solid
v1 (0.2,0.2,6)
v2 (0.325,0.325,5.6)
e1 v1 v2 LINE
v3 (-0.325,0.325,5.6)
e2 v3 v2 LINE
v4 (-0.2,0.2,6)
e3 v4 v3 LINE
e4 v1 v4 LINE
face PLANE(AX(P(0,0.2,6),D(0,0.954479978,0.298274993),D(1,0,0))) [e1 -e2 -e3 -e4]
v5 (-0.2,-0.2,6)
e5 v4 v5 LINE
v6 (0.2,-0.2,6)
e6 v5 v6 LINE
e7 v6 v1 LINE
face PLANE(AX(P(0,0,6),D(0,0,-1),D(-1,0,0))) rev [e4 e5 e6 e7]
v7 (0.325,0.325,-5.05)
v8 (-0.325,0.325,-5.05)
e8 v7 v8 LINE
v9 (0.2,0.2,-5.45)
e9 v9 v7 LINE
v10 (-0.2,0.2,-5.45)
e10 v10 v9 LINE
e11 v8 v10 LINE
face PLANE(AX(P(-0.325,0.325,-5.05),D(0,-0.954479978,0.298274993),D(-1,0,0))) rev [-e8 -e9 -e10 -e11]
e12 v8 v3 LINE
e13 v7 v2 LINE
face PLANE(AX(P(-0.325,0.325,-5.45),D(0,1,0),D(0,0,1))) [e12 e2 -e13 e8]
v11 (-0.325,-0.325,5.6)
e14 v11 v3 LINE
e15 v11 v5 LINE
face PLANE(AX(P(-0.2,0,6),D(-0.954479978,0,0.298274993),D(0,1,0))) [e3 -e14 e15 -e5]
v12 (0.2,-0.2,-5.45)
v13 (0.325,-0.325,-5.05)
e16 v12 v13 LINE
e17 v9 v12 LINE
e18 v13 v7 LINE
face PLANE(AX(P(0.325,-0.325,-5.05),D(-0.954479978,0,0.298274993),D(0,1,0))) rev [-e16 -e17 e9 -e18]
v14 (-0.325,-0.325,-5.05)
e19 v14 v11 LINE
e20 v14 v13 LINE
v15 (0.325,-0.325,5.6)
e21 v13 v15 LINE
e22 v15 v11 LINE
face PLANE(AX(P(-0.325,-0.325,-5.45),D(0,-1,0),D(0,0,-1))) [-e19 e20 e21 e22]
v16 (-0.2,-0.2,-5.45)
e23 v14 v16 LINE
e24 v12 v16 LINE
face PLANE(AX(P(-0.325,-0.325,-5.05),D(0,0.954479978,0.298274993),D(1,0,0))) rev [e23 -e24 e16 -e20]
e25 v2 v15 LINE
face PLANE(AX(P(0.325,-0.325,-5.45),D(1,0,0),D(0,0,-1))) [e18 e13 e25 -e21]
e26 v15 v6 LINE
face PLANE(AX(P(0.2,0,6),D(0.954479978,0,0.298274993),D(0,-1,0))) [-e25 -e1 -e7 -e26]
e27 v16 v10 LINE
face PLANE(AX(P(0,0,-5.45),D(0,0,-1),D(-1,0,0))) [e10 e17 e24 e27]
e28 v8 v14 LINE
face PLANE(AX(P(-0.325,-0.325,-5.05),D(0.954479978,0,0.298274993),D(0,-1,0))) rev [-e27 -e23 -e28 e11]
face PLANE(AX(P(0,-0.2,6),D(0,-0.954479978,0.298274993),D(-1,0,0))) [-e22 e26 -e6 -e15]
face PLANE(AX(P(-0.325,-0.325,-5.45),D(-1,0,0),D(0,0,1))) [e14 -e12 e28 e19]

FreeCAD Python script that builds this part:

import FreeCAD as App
import Part
import Sketcher
from FreeCAD import Vector
Q = App.Units.Quantity


def edges_at(feature, points):
    """Names of the edges that pass closest to the given points."""
    edges = feature.Shape.Edges
    near = lambda p: min(range(len(edges)), key=lambda i: edges[i].distToShape(Part.Vertex(*p))[0])
    return sorted({f"Edge{near(p) + 1}" for p in points})

doc = App.newDocument("Part")
body = doc.addObject("PartDesign::Body", "Body")

# Sketch on XY plane
sketch1 = body.newObject("Sketcher::SketchObject", "Sketch")
sketch1.AttachmentSupport = (doc.getObject("XY_Plane"), [""])
sketch1.MapMode = "FlatFace"
sketch1.addGeometry([
    Part.LineSegment(Vector(-0.3, 0.3, 0), Vector(-0.3, -0.3, 0)),
    Part.LineSegment(Vector(-0.3, -0.3, 0), Vector(0.3, -0.3, 0)),
    Part.LineSegment(Vector(0.3, -0.3, 0), Vector(0.3, 0.3, 0)),
    Part.LineSegment(Vector(0.3, 0.3, 0), Vector(-0.3, 0.3, 0)),
], False)
sketch1.addConstraint([
    Sketcher.Constraint("Coincident", 0, 2, 1, 1),
    Sketcher.Constraint("Coincident", 1, 2, 2, 1),
    Sketcher.Constraint("Coincident", 2, 2, 3, 1),
    Sketcher.Constraint("Coincident", 3, 2, 0, 1),
    Sketcher.Constraint("Vertical", 0),
    Sketcher.Constraint("Horizontal", 1),
    Sketcher.Constraint("Vertical", 2),
    Sketcher.Constraint("Horizontal", 3),
    Sketcher.Constraint("Symmetric", 0, 2, 2, 2, -1, 1),
    Sketcher.Constraint("Equal", 3, 0),
    Sketcher.Constraint("DistanceX", 1, 1, 1, 2, Q("0.65 mm")),
])
pad1 = body.newObject("PartDesign::Pad", "Pad")
pad1.Profile = sketch1
pad1.Type = "TwoLengths"
pad1.Length = 6
pad1.Length2 = 5.45
doc.recompute()

chamfer = body.newObject("PartDesign::Chamfer", "Chamfer")
chamfer.Base = (pad1, edges_at(pad1, [(0.325, 0, 6)]))
chamfer.ChamferType = "Two distances"
chamfer.Size = 0.4
chamfer.Size2 = 0.125
doc.recompute()

chamfer2 = body.newObject("PartDesign::Chamfer", "Chamfer001")
chamfer2.Base = (chamfer, edges_at(chamfer, [(-0.062, 0.325, 6)]))
chamfer2.ChamferType = "Two distances"
chamfer2.Size = 0.4
chamfer2.Size2 = 0.125
chamfer2.FlipDirection = True
doc.recompute()

chamfer3 = body.newObject("PartDesign::Chamfer", "Chamfer002")
chamfer3.Base = (chamfer2, edges_at(chamfer2, [(-0.325, -0.062, 6)]))
chamfer3.ChamferType = "Two distances"
chamfer3.Size = 0.4
chamfer3.Size2 = 0.125
chamfer3.FlipDirection = True
doc.recompute()

chamfer4 = body.newObject("PartDesign::Chamfer", "Chamfer003")
chamfer4.Base = (chamfer3, edges_at(chamfer3, [(0, -0.325, 6)]))
chamfer4.ChamferType = "Two distances"
chamfer4.Size = 0.4
chamfer4.Size2 = 0.125
chamfer4.FlipDirection = True
doc.recompute()

chamfer5 = body.newObject("PartDesign::Chamfer", "Chamfer004")
chamfer5.Base = (chamfer4, edges_at(chamfer4, [
    (-0.325, 0, -5.45),
    (0, -0.325, -5.45),
    (0.325, 0, -5.45),
    (0, 0.325, -5.45),
]))
chamfer5.ChamferType = "Two distances"
chamfer5.Size = 0.125
chamfer5.Size2 = 0.4
chamfer5.FlipDirection = True

doc.recompute()
